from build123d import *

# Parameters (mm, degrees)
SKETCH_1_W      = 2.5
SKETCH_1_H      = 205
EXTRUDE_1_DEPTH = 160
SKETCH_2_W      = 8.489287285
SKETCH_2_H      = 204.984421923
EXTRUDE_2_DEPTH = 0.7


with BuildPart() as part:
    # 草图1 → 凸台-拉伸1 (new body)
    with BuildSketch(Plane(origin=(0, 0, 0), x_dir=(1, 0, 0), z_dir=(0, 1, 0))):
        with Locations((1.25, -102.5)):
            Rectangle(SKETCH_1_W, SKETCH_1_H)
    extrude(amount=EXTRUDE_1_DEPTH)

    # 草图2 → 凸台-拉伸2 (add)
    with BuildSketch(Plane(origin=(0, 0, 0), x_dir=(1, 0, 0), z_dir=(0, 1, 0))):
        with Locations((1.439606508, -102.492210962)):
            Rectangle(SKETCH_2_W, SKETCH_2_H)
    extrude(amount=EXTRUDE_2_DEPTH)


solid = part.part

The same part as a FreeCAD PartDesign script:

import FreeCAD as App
import Part
import Sketcher


def add_polygon(sketch, points):
    """Adds a closed chain of lines whose ends are joined by coincident constraints."""
    first, n = sketch.GeometryCount, len(points)
    for a, b in zip(points, points[1:] + points[:1]):
        sketch.addGeometry(Part.LineSegment(App.Vector(*a, 0), App.Vector(*b, 0)), False)
    for i in range(n):
        sketch.addConstraint(Sketcher.Constraint("Coincident", first + i, 2, first + (i + 1) % n, 1))

doc = App.newDocument("Part")
body = doc.addObject("PartDesign::Body", "Body")

sketch1 = body.newObject("Sketcher::SketchObject", "Sketch")
sketch1.AttachmentSupport = (doc.getObject("XZ_Plane"), [""])
sketch1.MapMode = "FlatFace"
add_polygon(sketch1, [(0, 0), (0, 205), (2.5, 205), (2.5, 0)])
sketch1.addConstraint([
    Sketcher.Constraint("Vertical", 0),
    Sketcher.Constraint("Horizontal", 1),
    Sketcher.Constraint("Vertical", 2),
    Sketcher.Constraint("Horizontal", 3),
    Sketcher.Constraint("Coincident", 3, 2, -1, 1),
    Sketcher.Constraint("DistanceY", 0, 1, 0, 2, 205.0),
    Sketcher.Constraint("DistanceX", 1, 1, 1, 2, 2.5),
])
pad1 = body.newObject("PartDesign::Pad", "Pad")
pad1.Profile = sketch1
pad1.Length = 160
pad1.Reversed = True

sketch2 = body.newObject("Sketcher::SketchObject", "Sketch001")
sketch2.AttachmentSupport = (doc.getObject("XZ_Plane"), [""])
sketch2.MapMode = "FlatFace"
add_polygon(sketch2, [(-3, 0), (-3, 205), (6, 205), (6, 0)])
sketch2.addConstraint([
    Sketcher.Constraint("Vertical", 0),
    Sketcher.Constraint("Horizontal", 1),
    Sketcher.Constraint("Vertical", 2),
    Sketcher.Constraint("Horizontal", 3),
    Sketcher.Constraint("PointOnObject", 2, 2, -1),
    Sketcher.Constraint("DistanceY", 0, 1, 0, 2, 204.984422),
    Sketcher.Constraint("DistanceX", 1, 1, 1, 2, 8.489287),
    Sketcher.Constraint("DistanceX", -1, 1, 1, 2, 5.68425),
])
pad2 = body.newObject("PartDesign::Pad", "Pad001")
pad2.Profile = sketch2
pad2.Length = 0.7
pad2.Reversed = True

doc.recompute()
